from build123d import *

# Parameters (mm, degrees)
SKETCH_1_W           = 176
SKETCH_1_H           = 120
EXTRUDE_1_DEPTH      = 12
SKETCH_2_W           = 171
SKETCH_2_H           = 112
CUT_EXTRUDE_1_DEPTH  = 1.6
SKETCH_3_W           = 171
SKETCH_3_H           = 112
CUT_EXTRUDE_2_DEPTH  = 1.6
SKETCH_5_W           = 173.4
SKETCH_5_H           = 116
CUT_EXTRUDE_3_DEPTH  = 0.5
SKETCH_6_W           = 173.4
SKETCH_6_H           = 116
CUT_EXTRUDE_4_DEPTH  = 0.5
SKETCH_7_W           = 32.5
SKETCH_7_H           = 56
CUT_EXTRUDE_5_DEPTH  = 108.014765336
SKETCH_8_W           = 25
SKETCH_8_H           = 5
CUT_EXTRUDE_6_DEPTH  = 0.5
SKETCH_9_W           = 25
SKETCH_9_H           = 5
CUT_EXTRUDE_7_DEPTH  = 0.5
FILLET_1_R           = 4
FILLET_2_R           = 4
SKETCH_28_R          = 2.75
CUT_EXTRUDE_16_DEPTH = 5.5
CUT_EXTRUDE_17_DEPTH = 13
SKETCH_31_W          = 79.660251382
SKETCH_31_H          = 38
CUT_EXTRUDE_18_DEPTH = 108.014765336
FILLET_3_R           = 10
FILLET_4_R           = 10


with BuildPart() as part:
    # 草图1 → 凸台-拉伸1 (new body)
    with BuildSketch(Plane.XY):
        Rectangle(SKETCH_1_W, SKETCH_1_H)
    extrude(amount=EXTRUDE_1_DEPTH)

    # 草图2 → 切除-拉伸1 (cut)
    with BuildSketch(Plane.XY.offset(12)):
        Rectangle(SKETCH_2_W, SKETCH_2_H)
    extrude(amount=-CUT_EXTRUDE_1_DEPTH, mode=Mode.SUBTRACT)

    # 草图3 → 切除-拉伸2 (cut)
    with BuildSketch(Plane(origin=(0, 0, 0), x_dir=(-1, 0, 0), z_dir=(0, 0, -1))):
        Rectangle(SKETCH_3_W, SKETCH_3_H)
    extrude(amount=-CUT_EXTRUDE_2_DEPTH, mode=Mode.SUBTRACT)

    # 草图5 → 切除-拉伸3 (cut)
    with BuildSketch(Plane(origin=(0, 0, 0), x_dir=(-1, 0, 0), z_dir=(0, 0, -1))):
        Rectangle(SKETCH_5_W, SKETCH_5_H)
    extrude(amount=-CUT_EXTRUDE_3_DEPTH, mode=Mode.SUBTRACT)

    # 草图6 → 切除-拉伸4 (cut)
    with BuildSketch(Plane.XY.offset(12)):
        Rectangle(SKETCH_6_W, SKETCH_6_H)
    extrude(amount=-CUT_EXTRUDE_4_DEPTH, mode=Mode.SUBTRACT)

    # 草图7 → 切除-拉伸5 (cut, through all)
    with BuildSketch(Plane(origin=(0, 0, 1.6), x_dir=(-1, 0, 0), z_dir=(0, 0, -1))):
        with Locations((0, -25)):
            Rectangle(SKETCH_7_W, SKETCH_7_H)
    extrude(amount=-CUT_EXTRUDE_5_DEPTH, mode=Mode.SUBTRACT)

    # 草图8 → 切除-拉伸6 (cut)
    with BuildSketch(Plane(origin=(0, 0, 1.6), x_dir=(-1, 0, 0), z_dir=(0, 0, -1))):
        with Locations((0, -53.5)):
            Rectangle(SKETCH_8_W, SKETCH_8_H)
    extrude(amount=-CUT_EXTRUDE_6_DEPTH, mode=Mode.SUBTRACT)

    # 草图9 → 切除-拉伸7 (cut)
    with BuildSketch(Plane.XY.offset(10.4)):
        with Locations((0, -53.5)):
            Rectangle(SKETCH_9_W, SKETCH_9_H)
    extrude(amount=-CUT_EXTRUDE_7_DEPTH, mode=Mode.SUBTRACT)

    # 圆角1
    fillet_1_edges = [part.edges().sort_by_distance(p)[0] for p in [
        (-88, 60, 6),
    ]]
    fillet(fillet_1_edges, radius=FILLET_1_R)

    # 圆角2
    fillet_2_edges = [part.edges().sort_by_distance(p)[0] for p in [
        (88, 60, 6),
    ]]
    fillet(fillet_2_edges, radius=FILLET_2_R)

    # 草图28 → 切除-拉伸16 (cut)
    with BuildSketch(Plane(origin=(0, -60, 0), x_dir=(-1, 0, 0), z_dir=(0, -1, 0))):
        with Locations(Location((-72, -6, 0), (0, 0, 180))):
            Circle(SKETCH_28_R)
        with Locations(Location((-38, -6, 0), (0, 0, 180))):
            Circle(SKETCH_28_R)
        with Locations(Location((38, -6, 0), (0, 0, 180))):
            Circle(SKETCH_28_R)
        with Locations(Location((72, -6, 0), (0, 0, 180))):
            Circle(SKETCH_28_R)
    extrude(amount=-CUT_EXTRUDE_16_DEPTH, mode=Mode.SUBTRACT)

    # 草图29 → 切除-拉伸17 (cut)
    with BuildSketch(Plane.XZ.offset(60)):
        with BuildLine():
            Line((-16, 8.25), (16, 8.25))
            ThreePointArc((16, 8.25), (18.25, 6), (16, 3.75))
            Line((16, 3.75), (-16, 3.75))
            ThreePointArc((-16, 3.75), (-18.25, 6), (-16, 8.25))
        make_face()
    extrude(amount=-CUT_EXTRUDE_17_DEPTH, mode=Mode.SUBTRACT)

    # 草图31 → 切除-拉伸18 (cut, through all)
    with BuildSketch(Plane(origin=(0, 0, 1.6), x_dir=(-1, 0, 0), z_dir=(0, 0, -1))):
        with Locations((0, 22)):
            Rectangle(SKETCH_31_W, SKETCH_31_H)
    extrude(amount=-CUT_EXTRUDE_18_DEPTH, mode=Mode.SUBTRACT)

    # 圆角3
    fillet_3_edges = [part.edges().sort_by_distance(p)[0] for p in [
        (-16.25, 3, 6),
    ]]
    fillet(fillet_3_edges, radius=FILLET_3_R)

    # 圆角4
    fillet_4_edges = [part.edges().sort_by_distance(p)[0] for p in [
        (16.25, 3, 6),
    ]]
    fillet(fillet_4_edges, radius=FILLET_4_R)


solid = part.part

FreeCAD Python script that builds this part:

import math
import FreeCAD as App
import Part
import Sketcher


def edges_at(feature, points):
    """Names of the edges that pass closest to the given points."""
    edges = feature.Shape.Edges
    near = lambda p: min(range(len(edges)), key=lambda i: edges[i].distToShape(Part.Vertex(*p))[0])
    return sorted({f"Edge{near(p) + 1}" for p in points})


def add_polygon(sketch, points):
    """Adds a closed chain of lines whose ends are joined by coincident constraints."""
    first, n = sketch.GeometryCount, len(points)
    for a, b in zip(points, points[1:] + points[:1]):
        sketch.addGeometry(Part.LineSegment(App.Vector(*a, 0), App.Vector(*b, 0)), False)
    for i in range(n):
        sketch.addConstraint(Sketcher.Constraint("Coincident", first + i, 2, first + (i + 1) % n, 1))

doc = App.newDocument("Part")
body = doc.addObject("PartDesign::Body", "Body")

sketch1 = body.newObject("Sketcher::SketchObject", "Sketch")
sketch1.AttachmentSupport = (doc.getObject("XY_Plane"), [""])
sketch1.MapMode = "FlatFace"
add_polygon(sketch1, [(-88, 60), (-88, -60), (88, -60), (88, 60)])
sketch1.addConstraint(Sketcher.Constraint("Vertical", 0))
sketch1.addConstraint(Sketcher.Constraint("Horizontal", 1))
sketch1.addConstraint(Sketcher.Constraint("Vertical", 2))
sketch1.addConstraint(Sketcher.Constraint("Horizontal", 3))
sketch1.addConstraint(Sketcher.Constraint("Symmetric", 0, 2, 2, 2, -1, 1))
sketch1.addConstraint(Sketcher.Constraint("DistanceX", 1, 1, 1, 2, 176.0))
sketch1.addConstraint(Sketcher.Constraint("DistanceY", 0, 2, 0, 1, 120.0))
pad1 = body.newObject("PartDesign::Pad", "Pad")
pad1.Profile = sketch1
pad1.Length = 12

sketch2 = body.newObject("Sketcher::SketchObject", "Sketch001")
sketch2.AttachmentSupport = (doc.getObject("XY_Plane"), [""])
sketch2.MapMode = "FlatFace"
sketch2.AttachmentOffset = App.Placement(App.Vector(0, 0, 12), App.Rotation())
add_polygon(sketch2, [(-86, 56), (-86, -56), (86, -56), (86, 56)])
sketch2.addConstraint(Sketcher.Constraint("Vertical", 0))
sketch2.addConstraint(Sketcher.Constraint("Horizontal", 1))
sketch2.addConstraint(Sketcher.Constraint("Vertical", 2))
sketch2.addConstraint(Sketcher.Constraint("Horizontal", 3))
sketch2.addConstraint(Sketcher.Constraint("Symmetric", 0, 2, 2, 2, -1, 1))
sketch2.addConstraint(Sketcher.Constraint("DistanceX", 1, 1, 1, 2, 171.0))
sketch2.addConstraint(Sketcher.Constraint("DistanceY", 0, 2, 0, 1, 112.0))
pocket1 = body.newObject("PartDesign::Pocket", "Pocket")
pocket1.Profile = sketch2
pocket1.Length = 1.6

sketch3 = body.newObject("Sketcher::SketchObject", "Sketch002")
sketch3.AttachmentSupport = (doc.getObject("XY_Plane"), [""])
sketch3.MapMode = "FlatFace"
add_polygon(sketch3, [(86, 56), (86, -56), (-86, -56), (-86, 56)])
sketch3.addConstraint(Sketcher.Constraint("Vertical", 0))
sketch3.addConstraint(Sketcher.Constraint("Horizontal", 1))
sketch3.addConstraint(Sketcher.Constraint("Vertical", 2))
sketch3.addConstraint(Sketcher.Constraint("Horizontal", 3))
sketch3.addConstraint(Sketcher.Constraint("Symmetric", 0, 2, 2, 2, -1, 1))
sketch3.addConstraint(Sketcher.Constraint("DistanceX", 1, 2, 1, 1, 171.0))
sketch3.addConstraint(Sketcher.Constraint("DistanceY", 0, 2, 0, 1, 112.0))
pocket2 = body.newObject("PartDesign::Pocket", "Pocket001")
pocket2.Profile = sketch3
pocket2.Length = 1.6
pocket2.Reversed = True

sketch4 = body.newObject("Sketcher::SketchObject", "Sketch003")
sketch4.AttachmentSupport = (doc.getObject("XY_Plane"), [""])
sketch4.MapMode = "FlatFace"
add_polygon(sketch4, [(87, 58), (87, -58), (-87, -58), (-87, 58)])
sketch4.addConstraint(Sketcher.Constraint("Vertical", 0))
sketch4.addConstraint(Sketcher.Constraint("Horizontal", 1))
sketch4.addConstraint(Sketcher.Constraint("Vertical", 2))
sketch4.addConstraint(Sketcher.Constraint("Horizontal", 3))
sketch4.addConstraint(Sketcher.Constraint("Symmetric", 0, 2, 2, 2, -1, 1))
sketch4.addConstraint(Sketcher.Constraint("DistanceY", 0, 2, 0, 1, 116.0))
sketch4.addConstraint(Sketcher.Constraint("DistanceX", 1, 2, 1, 1, 173.4))
pocket3 = body.newObject("PartDesign::Pocket", "Pocket002")
pocket3.Profile = sketch4
pocket3.Length = 0.5
pocket3.Reversed = True

sketch5 = body.newObject("Sketcher::SketchObject", "Sketch004")
sketch5.AttachmentSupport = (doc.getObject("XY_Plane"), [""])
sketch5.MapMode = "FlatFace"
sketch5.AttachmentOffset = App.Placement(App.Vector(0, 0, 12), App.Rotation())
add_polygon(sketch5, [(-87, 58), (-87, -58), (87, -58), (87, 58)])
sketch5.addConstraint(Sketcher.Constraint("Vertical", 0))
sketch5.addConstraint(Sketcher.Constraint("Horizontal", 1))
sketch5.addConstraint(Sketcher.Constraint("Vertical", 2))
sketch5.addConstraint(Sketcher.Constraint("Horizontal", 3))
sketch5.addConstraint(Sketcher.Constraint("Symmetric", 0, 2, 2, 2, -1, 1))
sketch5.addConstraint(Sketcher.Constraint("DistanceY", 0, 2, 0, 1, 116.0))
sketch5.addConstraint(Sketcher.Constraint("DistanceX", 1, 1, 1, 2, 173.4))
pocket4 = body.newObject("PartDesign::Pocket", "Pocket003")
pocket4.Profile = sketch5
pocket4.Length = 0.5

sketch6 = body.newObject("Sketcher::SketchObject", "Sketch005")
sketch6.AttachmentSupport = (doc.getObject("XY_Plane"), [""])
sketch6.MapMode = "FlatFace"
sketch6.AttachmentOffset = App.Placement(App.Vector(0, 0, 1.6), App.Rotation())
add_polygon(sketch6, [(16, 3), (16, -53), (-16, -53), (-16, 3)])
sketch6.addConstraint(Sketcher.Constraint("Vertical", 0))
sketch6.addConstraint(Sketcher.Constraint("Horizontal", 1))
sketch6.addConstraint(Sketcher.Constraint("Vertical", 2))
sketch6.addConstraint(Sketcher.Constraint("Horizontal", 3))
sketch6.addConstraint(Sketcher.Constraint("DistanceY", 0, 2, 0, 1, 56.0))
sketch6.addConstraint(Sketcher.Constraint("DistanceX", 1, 2, 1, 1, 32.5))
sketch6.addConstraint(Sketcher.Constraint("DistanceY", 0, 2, -1, 1, 53.0))
sketch6.addConstraint(Sketcher.Constraint("DistanceX", -1, 1, 0, 2, 16.25))
pocket5 = body.newObject("PartDesign::Pocket", "Pocket004")
pocket5.Profile = sketch6
pocket5.Type = "ThroughAll"
pocket5.Reversed = True

sketch7 = body.newObject("Sketcher::SketchObject", "Sketch006")
sketch7.AttachmentSupport = (doc.getObject("XY_Plane"), [""])
sketch7.MapMode = "FlatFace"
sketch7.AttachmentOffset = App.Placement(App.Vector(0, 0, 1.6), App.Rotation())
add_polygon(sketch7, [(12, -51), (12, -56), (-12, -56), (-12, -51)])
sketch7.addConstraint(Sketcher.Constraint("Vertical", 0))
sketch7.addConstraint(Sketcher.Constraint("Horizontal", 1))
sketch7.addConstraint(Sketcher.Constraint("Vertical", 2))
sketch7.addConstraint(Sketcher.Constraint("Horizontal", 3))
sketch7.addConstraint(Sketcher.Constraint("DistanceX", 1, 2, 1, 1, 25.0))
sketch7.addConstraint(Sketcher.Constraint("DistanceY", 0, 2, 0, 1, 5.0))
sketch7.addConstraint(Sketcher.Constraint("DistanceY", 0, 2, -1, 1, 56.0))
sketch7.addConstraint(Sketcher.Constraint("DistanceX", -1, 1, 0, 2, 12.5))
pocket6 = body.newObject("PartDesign::Pocket", "Pocket005")
pocket6.Profile = sketch7
pocket6.Length = 0.5
pocket6.Reversed = True

sketch8 = body.newObject("Sketcher::SketchObject", "Sketch007")
sketch8.AttachmentSupport = (doc.getObject("XY_Plane"), [""])
sketch8.MapMode = "FlatFace"
sketch8.AttachmentOffset = App.Placement(App.Vector(0, 0, 10.4), App.Rotation())
add_polygon(sketch8, [(-12, -51), (-12, -56), (12, -56), (12, -51)])
sketch8.addConstraint(Sketcher.Constraint("Vertical", 0))
sketch8.addConstraint(Sketcher.Constraint("Horizontal", 1))
sketch8.addConstraint(Sketcher.Constraint("Vertical", 2))
sketch8.addConstraint(Sketcher.Constraint("Horizontal", 3))
sketch8.addConstraint(Sketcher.Constraint("DistanceX", 1, 1, 1, 2, 25.0))
sketch8.addConstraint(Sketcher.Constraint("DistanceY", 0, 2, 0, 1, 5.0))
sketch8.addConstraint(Sketcher.Constraint("DistanceY", 0, 2, -1, 1, 56.0))
sketch8.addConstraint(Sketcher.Constraint("DistanceX", 0, 2, -1, 1, 12.5))
pocket7 = body.newObject("PartDesign::Pocket", "Pocket006")
pocket7.Profile = sketch8
pocket7.Length = 0.5
doc.recompute()

fillet = body.newObject("PartDesign::Fillet", "Fillet")
fillet.Base = (pocket7, edges_at(pocket7, [(-88, 60, 6)]))
fillet.Radius = 4
doc.recompute()

fillet2 = body.newObject("PartDesign::Fillet", "Fillet001")
fillet2.Base = (fillet, edges_at(fillet, [(88, 60, 6)]))
fillet2.Radius = 4

sketch9 = body.newObject("Sketcher::SketchObject", "Sketch008")
sketch9.AttachmentSupport = (doc.getObject("XZ_Plane"), [""])
sketch9.MapMode = "FlatFace"
sketch9.AttachmentOffset = App.Placement(App.Vector(0, 0, 60), App.Rotation())
sketch9.addGeometry(Part.Circle(App.Vector(72, 6, 0), App.Vector(0, 0, 1), 2.8), False)
sketch9.addGeometry(Part.Circle(App.Vector(38, 6, 0), App.Vector(0, 0, 1), 2.8), False)
sketch9.addGeometry(Part.Circle(App.Vector(-38, 6, 0), App.Vector(0, 0, 1), 2.8), False)
sketch9.addGeometry(Part.Circle(App.Vector(-72, 6, 0), App.Vector(0, 0, 1), 2.8), False)
sketch9.addConstraint(Sketcher.Constraint("Equal", 0, 1))
sketch9.addConstraint(Sketcher.Constraint("Equal", 1, 2))
sketch9.addConstraint(Sketcher.Constraint("Equal", 2, 3))
sketch9.addConstraint(Sketcher.Constraint("Symmetric", 1, 3, 2, 3, -2))
sketch9.addConstraint(Sketcher.Constraint("Symmetric", 0, 3, 3, 3, -2))
sketch9.addConstraint(Sketcher.Constraint("Horizontal", 0, 3, 1, 3))
sketch9.addConstraint(Sketcher.Constraint("Diameter", 0, 5.5))
sketch9.addConstraint(Sketcher.Constraint("DistanceX", -1, 1, 0, 3, 72.0))
sketch9.addConstraint(Sketcher.Constraint("DistanceY", -1, 1, 0, 3, 6.0))
sketch9.addConstraint(Sketcher.Constraint("DistanceX", -1, 1, 1, 3, 38.0))
pocket8 = body.newObject("PartDesign::Pocket", "Pocket007")
pocket8.Profile = sketch9
pocket8.Length = 5.5

sketch10 = body.newObject("Sketcher::SketchObject", "Sketch009")
sketch10.AttachmentSupport = (doc.getObject("XZ_Plane"), [""])
sketch10.MapMode = "FlatFace"
sketch10.AttachmentOffset = App.Placement(App.Vector(0, 0, 60), App.Rotation())
sketch10.addGeometry(Part.LineSegment(App.Vector(16, 8.2, 0), App.Vector(-16, 8.2, 0)), False)
sketch10.addGeometry(Part.ArcOfCircle(Part.Circle(App.Vector(-16, 6, 0), App.Vector(0, 0, 1), 2.2), math.radians(90), math.radians(270)), False)
sketch10.addGeometry(Part.LineSegment(App.Vector(-16, 3.8, 0), App.Vector(16, 3.8, 0)), False)
sketch10.addGeometry(Part.ArcOfCircle(Part.Circle(App.Vector(16, 6, 0), App.Vector(0, 0, 1), 2.2), math.radians(-90), math.radians(90)), False)
sketch10.addConstraint(Sketcher.Constraint("Tangent", 0, 2, 1, 1))
sketch10.addConstraint(Sketcher.Constraint("Tangent", 1, 2, 2, 1))
sketch10.addConstraint(Sketcher.Constraint("Tangent", 2, 2, 3, 1))
sketch10.addConstraint(Sketcher.Constraint("Tangent", 3, 2, 0, 1))
sketch10.addConstraint(Sketcher.Constraint("Horizontal", 0))
sketch10.addConstraint(Sketcher.Constraint("Horizontal", 2))
sketch10.addConstraint(Sketcher.Constraint("DistanceX", 0, 2, 0, 1, 32.0))
sketch10.addConstraint(Sketcher.Constraint("Radius", 1, 2.25))
sketch10.addConstraint(Sketcher.Constraint("DistanceX", 1, 3, -1, 1, 16.0))
sketch10.addConstraint(Sketcher.Constraint("DistanceY", -1, 1, 1, 3, 6.0))
pocket9 = body.newObject("PartDesign::Pocket", "Pocket008")
pocket9.Profile = sketch10
pocket9.Length = 13

sketch11 = body.newObject("Sketcher::SketchObject", "Sketch010")
sketch11.AttachmentSupport = (doc.getObject("XY_Plane"), [""])
sketch11.MapMode = "FlatFace"
sketch11.AttachmentOffset = App.Placement(App.Vector(0, 0, 1.6), App.Rotation())
add_polygon(sketch11, [(40, 41), (40, 3), (-40, 3), (-40, 41)])
sketch11.addConstraint(Sketcher.Constraint("Vertical", 0))
sketch11.addConstraint(Sketcher.Constraint("Horizontal", 1))
sketch11.addConstraint(Sketcher.Constraint("Vertical", 2))
sketch11.addConstraint(Sketcher.Constraint("Horizontal", 3))
sketch11.addConstraint(Sketcher.Constraint("DistanceY", 0, 2, 0, 1, 38.0))
sketch11.addConstraint(Sketcher.Constraint("DistanceY", -1, 1, 0, 2, 3.0))
sketch11.addConstraint(Sketcher.Constraint("DistanceX", 1, 2, 1, 1, 79.660251))
sketch11.addConstraint(Sketcher.Constraint("DistanceX", -1, 1, 0, 2, 39.830126))
pocket10 = body.newObject("PartDesign::Pocket", "Pocket009")
pocket10.Profile = sketch11
pocket10.Type = "ThroughAll"
pocket10.Reversed = True
doc.recompute()

fillet3 = body.newObject("PartDesign::Fillet", "Fillet002")
fillet3.Base = (pocket10, edges_at(pocket10, [(-16.25, 3, 6)]))
fillet3.Radius = 10
doc.recompute()

fillet4 = body.newObject("PartDesign::Fillet", "Fillet003")
fillet4.Base = (fillet3, edges_at(fillet3, [(16.25, 3, 6)]))
fillet4.Radius = 10

doc.recompute()
